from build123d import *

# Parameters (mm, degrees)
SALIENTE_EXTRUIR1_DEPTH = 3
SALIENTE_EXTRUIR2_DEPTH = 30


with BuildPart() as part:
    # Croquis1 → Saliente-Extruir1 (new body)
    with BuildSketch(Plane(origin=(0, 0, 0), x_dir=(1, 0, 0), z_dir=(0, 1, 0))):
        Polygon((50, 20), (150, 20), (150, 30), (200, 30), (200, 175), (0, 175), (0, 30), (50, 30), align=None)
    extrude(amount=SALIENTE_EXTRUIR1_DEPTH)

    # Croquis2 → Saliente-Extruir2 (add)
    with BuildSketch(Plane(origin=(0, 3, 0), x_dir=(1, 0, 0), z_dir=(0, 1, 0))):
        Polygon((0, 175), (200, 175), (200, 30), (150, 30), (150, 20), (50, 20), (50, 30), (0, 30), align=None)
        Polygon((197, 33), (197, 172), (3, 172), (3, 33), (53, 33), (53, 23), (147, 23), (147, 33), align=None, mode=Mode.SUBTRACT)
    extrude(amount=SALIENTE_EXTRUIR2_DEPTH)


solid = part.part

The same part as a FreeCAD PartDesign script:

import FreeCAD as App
import Part
import Sketcher

V = App.Vector
Q = App.Units.Quantity


def add_polygon(sketch, points):
    """Adds a closed chain of lines whose ends are joined by coincident constraints."""
    first, n = sketch.GeometryCount, len(points)
    for a, b in zip(points, points[1:] + points[:1]):
        sketch.addGeometry(Part.LineSegment(App.Vector(*a, 0), App.Vector(*b, 0)), False)
    for i in range(n):
        sketch.addConstraint(Sketcher.Constraint("Coincident", first + i, 2, first + (i + 1) % n, 1))

doc = App.newDocument("Part")
body = doc.addObject("PartDesign::Body", "Body")

sketch1 = doc.addObject("Sketcher::SketchObject", "Sketch")
body.addObject(sketch1)
sketch1.AttachmentSupport = (doc.XZ_Plane, [""])
sketch1.MapMode = "FlatFace"
add_polygon(sketch1, [(50, -20), (150, -20), (150, -30), (200, -30), (200, -175), (0, -175), (0, -30), (50, -30)])
sketch1.addConstraint([
    Sketcher.Constraint("Horizontal", 0),
    Sketcher.Constraint("Vertical", 1),
    Sketcher.Constraint("Horizontal", 2),
    Sketcher.Constraint("Vertical", 3),
    Sketcher.Constraint("Horizontal", 4),
    Sketcher.Constraint("Vertical", 5),
    Sketcher.Constraint("Horizontal", 6),
    Sketcher.Constraint("Vertical", 7),
    Sketcher.Constraint("PointOnObject", 4, 2, -2),
    Sketcher.Constraint("Horizontal", 2, 2, 5, 2),
    Sketcher.Constraint("Equal", 2, 6),
    Sketcher.Constraint("DistanceX", 0, 1, 0, 2, Q("100 mm")),
    Sketcher.Constraint("DistanceX", 2, 1, 2, 2, Q("50 mm")),
    Sketcher.Constraint("DistanceY", 1, 2, 1, 1, Q("10 mm")),
    Sketcher.Constraint("DistanceY", 3, 2, 3, 1, Q("145 mm")),
    Sketcher.Constraint("DistanceY", 0, 2, -1, 1, Q("20 mm")),
])
pad1 = doc.addObject("PartDesign::Pad", "Pad")
body.addObject(pad1)
pad1.Profile = sketch1
pad1.Length = 3
pad1.Reversed = True

sketch2 = doc.addObject("Sketcher::SketchObject", "Sketch001")
body.addObject(sketch2)
sketch2.AttachmentSupport = (doc.XZ_Plane, [""])
sketch2.MapMode = "FlatFace"
sketch2.AttachmentOffset = App.Placement(V(0, 0, -3), App.Rotation())
add_polygon(sketch2, [(200, -175), (0, -175), (0, -30), (50, -30), (50, -20), (150, -20), (150, -30), (200, -30)])
add_polygon(sketch2, [(197, -33), (147, -33), (147, -23), (53, -23), (53, -33), (3, -33), (3, -172), (197, -172)])
sketch2.addConstraint([
    Sketcher.Constraint("Horizontal", 0),
    Sketcher.Constraint("Vertical", 1),
    Sketcher.Constraint("Horizontal", 2),
    Sketcher.Constraint("Vertical", 3),
    Sketcher.Constraint("Horizontal", 4),
    Sketcher.Constraint("Vertical", 5),
    Sketcher.Constraint("Horizontal", 6),
    Sketcher.Constraint("Vertical", 7),
    Sketcher.Constraint("Horizontal", 8),
    Sketcher.Constraint("Vertical", 9),
    Sketcher.Constraint("Horizontal", 10),
    Sketcher.Constraint("Vertical", 11),
    Sketcher.Constraint("Horizontal", 12),
    Sketcher.Constraint("Vertical", 13),
    Sketcher.Constraint("Horizontal", 14),
    Sketcher.Constraint("Vertical", 15),
    Sketcher.Constraint("PointOnObject", 0, 2, -2),
    Sketcher.Constraint("Horizontal", 2, 2, 5, 2),
    Sketcher.Constraint("Horizontal", 8, 2, 11, 2),
    Sketcher.Constraint("Equal", 2, 6),
    Sketcher.Constraint("Equal", 6, 8),
    Sketcher.Constraint("Equal", 8, 12),
    Sketcher.Constraint("Equal", 5, 9),
    Sketcher.Constraint("DistanceX", 0, 2, 0, 1, Q("200 mm")),
    Sketcher.Constraint("DistanceX", 2, 1, 2, 2, Q("50 mm")),
    Sketcher.Constraint("DistanceX", 10, 2, 10, 1, Q("94 mm")),
    Sketcher.Constraint("DistanceY", 1, 1, 1, 2, Q("145 mm")),
    Sketcher.Constraint("DistanceY", 3, 1, 3, 2, Q("10 mm")),
    Sketcher.Constraint("DistanceY", 13, 2, 13, 1, Q("139 mm")),
    Sketcher.Constraint("DistanceY", 0, 2, -1, 1, Q("175 mm")),
    Sketcher.Constraint("DistanceX", -1, 1, 8, 2, Q("147 mm")),
    Sketcher.Constraint("DistanceY", 8, 2, -1, 1, Q("33 mm")),
])
pad2 = doc.addObject("PartDesign::Pad", "Pad001")
body.addObject(pad2)
pad2.Profile = sketch2
pad2.Length = 30
pad2.Reversed = True

doc.recompute()
